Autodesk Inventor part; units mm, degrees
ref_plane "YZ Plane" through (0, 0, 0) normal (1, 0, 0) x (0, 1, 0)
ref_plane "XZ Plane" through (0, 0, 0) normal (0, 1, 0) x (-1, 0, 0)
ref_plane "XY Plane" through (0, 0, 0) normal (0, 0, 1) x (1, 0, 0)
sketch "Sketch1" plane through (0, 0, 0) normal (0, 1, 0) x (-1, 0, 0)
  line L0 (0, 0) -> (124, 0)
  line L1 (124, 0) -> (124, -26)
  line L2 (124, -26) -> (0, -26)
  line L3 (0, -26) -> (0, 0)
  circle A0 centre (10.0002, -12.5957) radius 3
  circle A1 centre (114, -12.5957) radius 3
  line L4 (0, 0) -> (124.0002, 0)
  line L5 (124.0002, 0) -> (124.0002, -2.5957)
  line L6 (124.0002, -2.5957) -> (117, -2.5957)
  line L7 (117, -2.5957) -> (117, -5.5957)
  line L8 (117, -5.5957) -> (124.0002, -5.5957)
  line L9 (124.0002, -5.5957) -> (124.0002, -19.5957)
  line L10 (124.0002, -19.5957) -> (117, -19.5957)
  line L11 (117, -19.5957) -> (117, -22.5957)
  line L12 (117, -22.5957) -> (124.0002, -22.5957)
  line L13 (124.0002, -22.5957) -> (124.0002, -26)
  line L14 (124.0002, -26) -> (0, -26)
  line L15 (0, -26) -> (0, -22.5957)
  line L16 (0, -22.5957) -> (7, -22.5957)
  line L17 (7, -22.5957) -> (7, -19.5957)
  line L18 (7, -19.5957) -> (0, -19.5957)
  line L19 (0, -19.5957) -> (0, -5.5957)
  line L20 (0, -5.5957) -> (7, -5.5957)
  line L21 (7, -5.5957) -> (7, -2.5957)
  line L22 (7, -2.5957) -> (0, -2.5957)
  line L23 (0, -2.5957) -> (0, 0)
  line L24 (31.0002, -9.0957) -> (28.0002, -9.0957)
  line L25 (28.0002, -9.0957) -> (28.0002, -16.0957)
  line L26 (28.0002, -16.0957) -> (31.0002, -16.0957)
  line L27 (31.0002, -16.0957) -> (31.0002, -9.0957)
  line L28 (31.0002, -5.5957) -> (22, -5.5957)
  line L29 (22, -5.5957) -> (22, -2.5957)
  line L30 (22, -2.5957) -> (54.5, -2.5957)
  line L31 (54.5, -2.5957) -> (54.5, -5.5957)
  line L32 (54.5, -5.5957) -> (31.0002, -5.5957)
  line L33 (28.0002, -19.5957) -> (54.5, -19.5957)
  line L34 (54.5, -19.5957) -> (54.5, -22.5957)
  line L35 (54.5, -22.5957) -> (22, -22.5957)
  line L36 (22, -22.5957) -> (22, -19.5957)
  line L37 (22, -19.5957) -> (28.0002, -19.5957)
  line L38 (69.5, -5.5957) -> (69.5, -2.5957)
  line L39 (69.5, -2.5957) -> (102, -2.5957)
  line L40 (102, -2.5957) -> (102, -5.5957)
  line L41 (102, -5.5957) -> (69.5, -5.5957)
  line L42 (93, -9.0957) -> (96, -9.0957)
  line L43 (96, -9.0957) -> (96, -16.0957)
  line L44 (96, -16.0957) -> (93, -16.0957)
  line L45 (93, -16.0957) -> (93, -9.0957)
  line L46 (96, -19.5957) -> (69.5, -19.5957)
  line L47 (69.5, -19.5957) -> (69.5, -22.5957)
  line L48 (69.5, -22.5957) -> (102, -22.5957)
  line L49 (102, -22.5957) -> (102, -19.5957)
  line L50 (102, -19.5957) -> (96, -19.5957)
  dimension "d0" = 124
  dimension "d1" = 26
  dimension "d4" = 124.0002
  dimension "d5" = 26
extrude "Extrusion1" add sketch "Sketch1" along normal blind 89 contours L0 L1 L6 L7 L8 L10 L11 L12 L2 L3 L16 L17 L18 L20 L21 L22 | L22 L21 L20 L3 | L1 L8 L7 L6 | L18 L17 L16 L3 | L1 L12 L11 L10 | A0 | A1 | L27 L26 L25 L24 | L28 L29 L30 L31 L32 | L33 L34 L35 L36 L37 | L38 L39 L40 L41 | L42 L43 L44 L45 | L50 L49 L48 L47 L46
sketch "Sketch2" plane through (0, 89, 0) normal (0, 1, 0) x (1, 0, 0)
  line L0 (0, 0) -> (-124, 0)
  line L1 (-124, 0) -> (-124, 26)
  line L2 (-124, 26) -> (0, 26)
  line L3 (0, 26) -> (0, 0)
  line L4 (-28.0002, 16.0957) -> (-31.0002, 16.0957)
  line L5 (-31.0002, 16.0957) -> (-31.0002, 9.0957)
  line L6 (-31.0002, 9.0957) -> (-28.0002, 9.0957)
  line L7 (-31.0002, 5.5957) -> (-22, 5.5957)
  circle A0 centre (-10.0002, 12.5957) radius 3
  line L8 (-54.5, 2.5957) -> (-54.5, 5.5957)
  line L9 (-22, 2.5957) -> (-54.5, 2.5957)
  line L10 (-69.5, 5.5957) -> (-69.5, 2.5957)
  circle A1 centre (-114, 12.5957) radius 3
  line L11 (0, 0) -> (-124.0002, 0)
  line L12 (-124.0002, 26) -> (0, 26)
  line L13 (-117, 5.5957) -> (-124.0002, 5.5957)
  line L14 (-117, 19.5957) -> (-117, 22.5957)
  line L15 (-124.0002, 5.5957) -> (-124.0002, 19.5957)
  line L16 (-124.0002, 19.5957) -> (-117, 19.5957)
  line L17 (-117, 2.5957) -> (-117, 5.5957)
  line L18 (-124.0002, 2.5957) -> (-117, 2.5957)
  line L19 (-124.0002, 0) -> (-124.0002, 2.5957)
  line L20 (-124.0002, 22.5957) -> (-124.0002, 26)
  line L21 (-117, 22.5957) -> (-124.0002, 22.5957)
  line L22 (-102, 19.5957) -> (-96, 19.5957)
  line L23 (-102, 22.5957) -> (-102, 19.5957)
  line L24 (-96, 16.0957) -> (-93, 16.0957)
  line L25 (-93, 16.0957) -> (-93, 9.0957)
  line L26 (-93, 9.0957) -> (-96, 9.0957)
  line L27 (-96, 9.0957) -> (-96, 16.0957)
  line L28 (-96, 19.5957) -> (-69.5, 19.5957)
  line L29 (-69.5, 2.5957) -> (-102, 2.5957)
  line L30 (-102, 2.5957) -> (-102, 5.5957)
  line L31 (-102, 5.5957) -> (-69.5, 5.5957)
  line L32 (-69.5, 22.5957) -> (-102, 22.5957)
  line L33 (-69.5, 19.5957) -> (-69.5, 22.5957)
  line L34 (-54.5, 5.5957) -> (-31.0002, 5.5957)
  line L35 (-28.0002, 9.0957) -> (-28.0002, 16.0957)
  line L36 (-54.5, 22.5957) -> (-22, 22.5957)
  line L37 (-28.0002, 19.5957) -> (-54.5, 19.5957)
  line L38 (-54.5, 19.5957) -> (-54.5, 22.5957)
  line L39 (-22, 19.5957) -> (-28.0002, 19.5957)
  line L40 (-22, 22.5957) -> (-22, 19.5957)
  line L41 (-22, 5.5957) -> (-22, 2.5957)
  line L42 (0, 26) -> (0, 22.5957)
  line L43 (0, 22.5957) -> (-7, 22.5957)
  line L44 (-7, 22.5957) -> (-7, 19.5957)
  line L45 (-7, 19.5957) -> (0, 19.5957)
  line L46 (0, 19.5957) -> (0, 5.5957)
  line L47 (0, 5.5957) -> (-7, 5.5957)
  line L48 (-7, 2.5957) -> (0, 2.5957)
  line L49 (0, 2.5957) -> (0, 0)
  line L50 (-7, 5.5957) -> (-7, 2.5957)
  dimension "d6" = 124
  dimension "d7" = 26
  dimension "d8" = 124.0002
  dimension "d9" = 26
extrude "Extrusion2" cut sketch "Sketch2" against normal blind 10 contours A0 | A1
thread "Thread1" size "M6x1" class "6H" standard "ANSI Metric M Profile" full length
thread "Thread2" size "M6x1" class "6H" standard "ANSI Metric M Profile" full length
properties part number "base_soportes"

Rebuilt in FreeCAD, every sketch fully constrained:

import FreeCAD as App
import Part
import Sketcher

V = App.Vector
Q = App.Units.Quantity

doc = App.newDocument("Part")
body = doc.addObject("PartDesign::Body", "Body")

# Sketch on XZ plane
sketch1 = body.newObject("Sketcher::SketchObject", "Sketch")
sketch1.AttachmentSupport = (doc.getObject("XZ_Plane"), [""])
sketch1.MapMode = "FlatFace"
sketch1.addGeometry(Part.LineSegment(V(-124, 0, 0), V(0, 0, 0)), False)
sketch1.addGeometry(Part.LineSegment(V(0, 0, 0), V(0, -26, 0)), False)
sketch1.addGeometry(Part.LineSegment(V(0, -26, 0), V(-124, -26, 0)), False)
sketch1.addGeometry(Part.LineSegment(V(-124, -26, 0), V(-124, 0, 0)), False)
sketch1.addConstraint(Sketcher.Constraint("Coincident", 0, 2, 1, 1))
sketch1.addConstraint(Sketcher.Constraint("Coincident", 1, 2, 2, 1))
sketch1.addConstraint(Sketcher.Constraint("Coincident", 2, 2, 3, 1))
sketch1.addConstraint(Sketcher.Constraint("Coincident", 3, 2, 0, 1))
sketch1.addConstraint(Sketcher.Constraint("Horizontal", 0))
sketch1.addConstraint(Sketcher.Constraint("Vertical", 1))
sketch1.addConstraint(Sketcher.Constraint("Horizontal", 2))
sketch1.addConstraint(Sketcher.Constraint("Vertical", 3))
sketch1.addConstraint(Sketcher.Constraint("Coincident", 0, 2, -1, 1))
sketch1.addConstraint(Sketcher.Constraint("DistanceX", 0, 1, 0, 2, Q("124 mm")))
sketch1.addConstraint(Sketcher.Constraint("DistanceY", 1, 2, 1, 1, Q("26 mm")))
pad1 = body.newObject("PartDesign::Pad", "Pad")
pad1.Profile = sketch1
pad1.Length = 89
pad1.Reversed = True

# Sketch on XZ plane
sketch2 = body.newObject("Sketcher::SketchObject", "Sketch001")
sketch2.AttachmentSupport = (doc.getObject("XZ_Plane"), [""])
sketch2.MapMode = "FlatFace"
sketch2.AttachmentOffset = App.Placement(V(0, 0, -89), App.Rotation())
sketch2.addGeometry(Part.Circle(V(-10.0002, -12.5957, 0), V(0, 0, 1), 3), False)
sketch2.addGeometry(Part.Circle(V(-114, -12.5957, 0), V(0, 0, 1), 3), False)
sketch2.addConstraint(Sketcher.Constraint("Equal", 0, 1))
sketch2.addConstraint(Sketcher.Constraint("Horizontal", 0, 3, 1, 3))
sketch2.addConstraint(Sketcher.Constraint("Diameter", 0, Q("6 mm")))
sketch2.addConstraint(Sketcher.Constraint("DistanceX", 1, 3, -1, 1, Q("114 mm")))
sketch2.addConstraint(Sketcher.Constraint("DistanceX", 0, 3, -1, 1, Q("10.0002 mm")))
sketch2.addConstraint(Sketcher.Constraint("DistanceY", 0, 3, -1, 1, Q("12.5957 mm")))
pocket1 = body.newObject("PartDesign::Pocket", "Pocket")
pocket1.Profile = sketch2
pocket1.Length = 10
pocket1.Reversed = True

doc.recompute()
